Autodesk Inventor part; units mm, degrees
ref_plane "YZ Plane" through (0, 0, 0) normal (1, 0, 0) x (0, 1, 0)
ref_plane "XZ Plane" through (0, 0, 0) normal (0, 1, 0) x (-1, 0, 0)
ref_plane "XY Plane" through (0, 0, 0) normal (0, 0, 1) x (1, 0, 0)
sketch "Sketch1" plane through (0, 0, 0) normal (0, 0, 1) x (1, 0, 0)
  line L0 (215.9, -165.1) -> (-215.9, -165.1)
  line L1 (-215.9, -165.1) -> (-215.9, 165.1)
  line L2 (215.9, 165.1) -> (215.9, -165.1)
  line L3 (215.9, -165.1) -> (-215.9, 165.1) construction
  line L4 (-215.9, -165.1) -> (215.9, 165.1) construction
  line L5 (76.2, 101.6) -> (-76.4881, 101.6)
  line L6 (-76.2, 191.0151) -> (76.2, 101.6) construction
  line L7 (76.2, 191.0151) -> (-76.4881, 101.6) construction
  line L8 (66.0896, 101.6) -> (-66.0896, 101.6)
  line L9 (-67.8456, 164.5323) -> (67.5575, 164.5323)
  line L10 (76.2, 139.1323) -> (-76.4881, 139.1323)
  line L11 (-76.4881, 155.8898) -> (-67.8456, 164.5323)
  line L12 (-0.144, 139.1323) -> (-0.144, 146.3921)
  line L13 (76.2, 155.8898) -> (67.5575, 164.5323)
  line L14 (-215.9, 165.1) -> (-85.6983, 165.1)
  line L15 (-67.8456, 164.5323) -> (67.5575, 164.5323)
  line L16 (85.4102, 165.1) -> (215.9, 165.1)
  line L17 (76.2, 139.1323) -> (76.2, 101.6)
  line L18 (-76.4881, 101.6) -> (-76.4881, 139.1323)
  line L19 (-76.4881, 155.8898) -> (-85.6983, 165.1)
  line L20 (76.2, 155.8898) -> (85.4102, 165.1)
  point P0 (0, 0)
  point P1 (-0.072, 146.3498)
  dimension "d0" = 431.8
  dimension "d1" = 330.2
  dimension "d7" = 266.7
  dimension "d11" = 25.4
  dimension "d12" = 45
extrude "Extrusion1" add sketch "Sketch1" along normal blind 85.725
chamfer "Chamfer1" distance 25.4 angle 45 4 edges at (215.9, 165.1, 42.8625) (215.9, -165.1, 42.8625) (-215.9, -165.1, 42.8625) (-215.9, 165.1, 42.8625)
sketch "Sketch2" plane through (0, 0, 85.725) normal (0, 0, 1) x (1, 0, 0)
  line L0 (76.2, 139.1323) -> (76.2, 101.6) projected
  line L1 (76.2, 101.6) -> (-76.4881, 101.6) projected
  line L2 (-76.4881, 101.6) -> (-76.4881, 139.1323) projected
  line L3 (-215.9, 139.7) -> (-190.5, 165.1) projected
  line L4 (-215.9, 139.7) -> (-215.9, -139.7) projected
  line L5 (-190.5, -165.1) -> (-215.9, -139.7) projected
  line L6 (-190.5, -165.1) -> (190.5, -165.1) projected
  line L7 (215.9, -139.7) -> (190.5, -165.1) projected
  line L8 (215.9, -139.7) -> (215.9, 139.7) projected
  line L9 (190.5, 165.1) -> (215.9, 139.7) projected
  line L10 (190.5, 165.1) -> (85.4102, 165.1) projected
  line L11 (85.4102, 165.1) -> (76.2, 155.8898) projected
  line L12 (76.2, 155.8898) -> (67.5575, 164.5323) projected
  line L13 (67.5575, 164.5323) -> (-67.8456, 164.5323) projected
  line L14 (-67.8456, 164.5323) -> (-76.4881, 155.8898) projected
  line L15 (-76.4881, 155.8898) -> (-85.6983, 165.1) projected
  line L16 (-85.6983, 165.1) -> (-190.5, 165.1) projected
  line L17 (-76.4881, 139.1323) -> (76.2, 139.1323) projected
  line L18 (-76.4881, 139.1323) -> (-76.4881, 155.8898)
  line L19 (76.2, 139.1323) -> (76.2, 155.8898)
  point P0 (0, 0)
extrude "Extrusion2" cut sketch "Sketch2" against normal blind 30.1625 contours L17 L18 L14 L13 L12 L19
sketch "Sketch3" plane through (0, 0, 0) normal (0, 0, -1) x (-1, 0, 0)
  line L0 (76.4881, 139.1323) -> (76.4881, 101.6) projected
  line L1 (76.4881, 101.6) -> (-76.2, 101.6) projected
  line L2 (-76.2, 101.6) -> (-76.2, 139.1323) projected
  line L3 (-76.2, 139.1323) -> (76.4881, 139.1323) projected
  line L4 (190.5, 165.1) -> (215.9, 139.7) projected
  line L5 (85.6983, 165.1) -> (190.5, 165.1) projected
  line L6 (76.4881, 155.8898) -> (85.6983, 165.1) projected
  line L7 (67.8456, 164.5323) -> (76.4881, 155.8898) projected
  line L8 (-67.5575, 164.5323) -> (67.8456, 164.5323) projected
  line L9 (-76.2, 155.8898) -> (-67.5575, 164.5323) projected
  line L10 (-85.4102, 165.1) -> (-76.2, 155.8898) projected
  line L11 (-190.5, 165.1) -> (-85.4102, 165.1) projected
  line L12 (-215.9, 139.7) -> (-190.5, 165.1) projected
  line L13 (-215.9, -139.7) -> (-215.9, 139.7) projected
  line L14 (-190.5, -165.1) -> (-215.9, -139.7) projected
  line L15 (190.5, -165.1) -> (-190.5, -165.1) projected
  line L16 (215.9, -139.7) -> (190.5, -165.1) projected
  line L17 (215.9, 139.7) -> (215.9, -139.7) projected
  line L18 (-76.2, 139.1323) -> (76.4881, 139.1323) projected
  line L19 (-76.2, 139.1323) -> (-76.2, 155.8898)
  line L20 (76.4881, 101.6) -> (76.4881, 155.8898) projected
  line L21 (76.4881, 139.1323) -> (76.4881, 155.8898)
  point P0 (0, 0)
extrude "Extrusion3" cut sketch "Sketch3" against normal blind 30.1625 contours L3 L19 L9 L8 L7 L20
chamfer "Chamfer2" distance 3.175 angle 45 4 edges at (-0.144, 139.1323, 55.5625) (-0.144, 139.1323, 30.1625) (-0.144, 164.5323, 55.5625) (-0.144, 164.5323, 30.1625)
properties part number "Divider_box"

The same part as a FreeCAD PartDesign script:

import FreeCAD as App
import Part
import Sketcher
from FreeCAD import Vector
Q = App.Units.Quantity


def edges_at(feature, points):
    """Names of the edges that pass closest to the given points."""
    edges = feature.Shape.Edges
    near = lambda p: min(range(len(edges)), key=lambda i: edges[i].distToShape(Part.Vertex(*p))[0])
    return sorted({f"Edge{near(p) + 1}" for p in points})

doc = App.newDocument("Part")
params = doc.addObject("Spreadsheet::Sheet", "Params")
for row, (alias, value) in enumerate([
    ("sketch1_width", "17 in"),
    ("sketch1_height", "13 in"),
    ("pad1_length", "3.375 in"),
    ("chamfer_size", "1 in"),
    ("pocket1_length", "1.1875 in"),
    ("pocket2_length", "1.1875 in"),
    ("chamfer2_size", "0.125 in"),
], start=1):
    params.set(f"A{row}", alias)
    params.set(f"B{row}", "=" + value)
    params.setAlias(f"B{row}", alias)

body = doc.addObject("PartDesign::Body", "Body")

# Sketch on XY plane
sketch1 = body.newObject("Sketcher::SketchObject", "Sketch")
sketch1.AttachmentSupport = (doc.getObject("XY_Plane"), [""])
sketch1.MapMode = "FlatFace"
sketch1.addGeometry(Part.LineSegment(Vector(-216, -165, 0), Vector(216, -165, 0)), False)
sketch1.addGeometry(Part.LineSegment(Vector(216, -165, 0), Vector(216, 165, 0)), False)
sketch1.addGeometry(Part.LineSegment(Vector(216, 165, 0), Vector(85, 165, 0)), False)
sketch1.addGeometry(Part.LineSegment(Vector(85, 165, 0), Vector(76, 156, 0)), False)
sketch1.addGeometry(Part.LineSegment(Vector(76, 156, 0), Vector(68, 165, 0)), False)
sketch1.addGeometry(Part.LineSegment(Vector(68, 165, 0), Vector(-68, 165, 0)), False)
sketch1.addGeometry(Part.LineSegment(Vector(-68, 165, 0), Vector(-76, 156, 0)), False)
sketch1.addGeometry(Part.LineSegment(Vector(-76, 156, 0), Vector(-86, 165, 0)), False)
sketch1.addGeometry(Part.LineSegment(Vector(-86, 165, 0), Vector(-216, 165, 0)), False)
sketch1.addGeometry(Part.LineSegment(Vector(-216, 165, 0), Vector(-216, -165, 0)), False)
sketch1.addGeometry(Part.LineSegment(Vector(76, 139, 0), Vector(76, 102, 0)), False)
sketch1.addGeometry(Part.LineSegment(Vector(76, 102, 0), Vector(-76, 102, 0)), False)
sketch1.addGeometry(Part.LineSegment(Vector(-76, 102, 0), Vector(-76, 139, 0)), False)
sketch1.addGeometry(Part.LineSegment(Vector(-76, 139, 0), Vector(76, 139, 0)), False)
sketch1.addConstraint(Sketcher.Constraint("Coincident", 0, 2, 1, 1))
sketch1.addConstraint(Sketcher.Constraint("Coincident", 1, 2, 2, 1))
sketch1.addConstraint(Sketcher.Constraint("Coincident", 2, 2, 3, 1))
sketch1.addConstraint(Sketcher.Constraint("Coincident", 3, 2, 4, 1))
sketch1.addConstraint(Sketcher.Constraint("Coincident", 4, 2, 5, 1))
sketch1.addConstraint(Sketcher.Constraint("Coincident", 5, 2, 6, 1))
sketch1.addConstraint(Sketcher.Constraint("Coincident", 6, 2, 7, 1))
sketch1.addConstraint(Sketcher.Constraint("Coincident", 7, 2, 8, 1))
sketch1.addConstraint(Sketcher.Constraint("Coincident", 8, 2, 9, 1))
sketch1.addConstraint(Sketcher.Constraint("Coincident", 9, 2, 0, 1))
sketch1.addConstraint(Sketcher.Constraint("Coincident", 10, 2, 11, 1))
sketch1.addConstraint(Sketcher.Constraint("Coincident", 11, 2, 12, 1))
sketch1.addConstraint(Sketcher.Constraint("Coincident", 12, 2, 13, 1))
sketch1.addConstraint(Sketcher.Constraint("Coincident", 13, 2, 10, 1))
sketch1.addConstraint(Sketcher.Constraint("Horizontal", 0))
sketch1.addConstraint(Sketcher.Constraint("Vertical", 1))
sketch1.addConstraint(Sketcher.Constraint("Horizontal", 2))
sketch1.addConstraint(Sketcher.Constraint("Horizontal", 5))
sketch1.addConstraint(Sketcher.Constraint("Horizontal", 8))
sketch1.addConstraint(Sketcher.Constraint("Vertical", 9))
sketch1.addConstraint(Sketcher.Constraint("Vertical", 10))
sketch1.addConstraint(Sketcher.Constraint("Horizontal", 11))
sketch1.addConstraint(Sketcher.Constraint("Vertical", 12))
sketch1.addConstraint(Sketcher.Constraint("Horizontal", 13))
sketch1.addConstraint(Sketcher.Constraint("Symmetric", 0, 2, 8, 2, -1, 1))
sketch1.addConstraint(Sketcher.Constraint("Perpendicular", 3, 4))
sketch1.addConstraint(Sketcher.Constraint("Perpendicular", 4, 6))
sketch1.addConstraint(Sketcher.Constraint("Perpendicular", 6, 7))
sketch1.addConstraint(Sketcher.Constraint("Horizontal", 3, 2, 6, 2))
sketch1.addConstraint(Sketcher.Constraint("Horizontal", 2, 2, 7, 2))
sketch1.addConstraint(Sketcher.Constraint("Vertical", 3, 2, 10, 2))
sketch1.addConstraint(Sketcher.Constraint("Vertical", 6, 2, 11, 2))
sketch1.addConstraint(Sketcher.Constraint("Equal", 4, 6))
sketch1.addConstraint(Sketcher.Constraint("DistanceX", 0, 1, 0, 2, Q("17 in")))
sketch1.addConstraint(Sketcher.Constraint("DistanceY", 1, 1, 1, 2, Q("13 in")))
sketch1.addConstraint(Sketcher.Constraint("DistanceY", 12, 2, 5, 2, Q("1 in")))
sketch1.addConstraint(Sketcher.Constraint("DistanceX", -1, 1, 3, 2, Q("3 in")))
sketch1.addConstraint(Sketcher.Constraint("DistanceY", -1, 1, 10, 2, Q("4 in")))
sketch1.addConstraint(Sketcher.Constraint("DistanceX", 2, 2, 2, 1, Q("5.1374 in")))
sketch1.addConstraint(Sketcher.Constraint("Distance", 4, Q("0.4812 in")))
sketch1.addConstraint(Sketcher.Constraint("DistanceX", 5, 2, 5, 1, 135.403))
sketch1.setExpression("Constraints[33]", "Params.sketch1_width")
sketch1.setExpression("Constraints[34]", "Params.sketch1_height")
pad1 = body.newObject("PartDesign::Pad", "Pad")
pad1.Profile = sketch1
pad1.setExpression("Length", "Params.pad1_length")
doc.recompute()

chamfer = body.newObject("PartDesign::Chamfer", "Chamfer")
chamfer.Base = (pad1, edges_at(pad1, [
    (215.9, 165.1, 42.862),
    (215.9, -165.1, 42.862),
    (-215.9, -165.1, 42.862),
    (-215.9, 165.1, 42.862),
]))
chamfer.setExpression("Size", "Params.chamfer_size")

# Sketch on XY plane
sketch2 = body.newObject("Sketcher::SketchObject", "Sketch001")
sketch2.AttachmentSupport = (doc.getObject("XY_Plane"), [""])
sketch2.MapMode = "FlatFace"
sketch2.AttachmentOffset = App.Placement(Vector(0, 0, 3.375 * 25.4), App.Rotation())
sketch2.addGeometry(Part.LineSegment(Vector(-76, 139, 0), Vector(76, 139, 0)), False)
sketch2.addGeometry(Part.LineSegment(Vector(76, 139, 0), Vector(76, 156, 0)), False)
sketch2.addGeometry(Part.LineSegment(Vector(76, 156, 0), Vector(68, 165, 0)), False)
sketch2.addGeometry(Part.LineSegment(Vector(68, 165, 0), Vector(-68, 165, 0)), False)
sketch2.addGeometry(Part.LineSegment(Vector(-68, 165, 0), Vector(-76, 156, 0)), False)
sketch2.addGeometry(Part.LineSegment(Vector(-76, 156, 0), Vector(-76, 139, 0)), False)
sketch2.addConstraint(Sketcher.Constraint("Coincident", 0, 2, 1, 1))
sketch2.addConstraint(Sketcher.Constraint("Coincident", 1, 2, 2, 1))
sketch2.addConstraint(Sketcher.Constraint("Coincident", 2, 2, 3, 1))
sketch2.addConstraint(Sketcher.Constraint("Coincident", 3, 2, 4, 1))
sketch2.addConstraint(Sketcher.Constraint("Coincident", 4, 2, 5, 1))
sketch2.addConstraint(Sketcher.Constraint("Coincident", 5, 2, 0, 1))
sketch2.addConstraint(Sketcher.Constraint("Horizontal", 0))
sketch2.addConstraint(Sketcher.Constraint("Vertical", 1))
sketch2.addConstraint(Sketcher.Constraint("Horizontal", 3))
sketch2.addConstraint(Sketcher.Constraint("Vertical", 5))
sketch2.addConstraint(Sketcher.Constraint("Perpendicular", 2, 4))
sketch2.addConstraint(Sketcher.Constraint("Horizontal", 1, 2, 4, 2))
sketch2.addConstraint(Sketcher.Constraint("Equal", 2, 4))
sketch2.addConstraint(Sketcher.Constraint("DistanceX", -1, 1, 0, 2, Q("3 in")))
sketch2.addConstraint(Sketcher.Constraint("DistanceY", 0, 2, 2, 2, Q("1 in")))
sketch2.addConstraint(Sketcher.Constraint("Distance", 2, Q("0.4812 in")))
sketch2.addConstraint(Sketcher.Constraint("DistanceX", 0, 1, 0, 2, 152.688))
sketch2.addConstraint(Sketcher.Constraint("DistanceY", -1, 1, 1, 2, Q("6.1374 in")))
pocket1 = body.newObject("PartDesign::Pocket", "Pocket")
pocket1.Profile = sketch2
pocket1.setExpression("Length", "Params.pocket1_length")

# Sketch on XY plane
sketch3 = body.newObject("Sketcher::SketchObject", "Sketch002")
sketch3.AttachmentSupport = (doc.getObject("XY_Plane"), [""])
sketch3.MapMode = "FlatFace"
sketch3.addGeometry(Part.LineSegment(Vector(76, 139, 0), Vector(-76, 139, 0)), False)
sketch3.addGeometry(Part.LineSegment(Vector(-76, 139, 0), Vector(-76, 156, 0)), False)
sketch3.addGeometry(Part.LineSegment(Vector(-76, 156, 0), Vector(-68, 165, 0)), False)
sketch3.addGeometry(Part.LineSegment(Vector(-68, 165, 0), Vector(68, 165, 0)), False)
sketch3.addGeometry(Part.LineSegment(Vector(68, 165, 0), Vector(76, 156, 0)), False)
sketch3.addGeometry(Part.LineSegment(Vector(76, 156, 0), Vector(76, 139, 0)), False)
sketch3.addConstraint(Sketcher.Constraint("Coincident", 0, 2, 1, 1))
sketch3.addConstraint(Sketcher.Constraint("Coincident", 1, 2, 2, 1))
sketch3.addConstraint(Sketcher.Constraint("Coincident", 2, 2, 3, 1))
sketch3.addConstraint(Sketcher.Constraint("Coincident", 3, 2, 4, 1))
sketch3.addConstraint(Sketcher.Constraint("Coincident", 4, 2, 5, 1))
sketch3.addConstraint(Sketcher.Constraint("Coincident", 5, 2, 0, 1))
sketch3.addConstraint(Sketcher.Constraint("Horizontal", 0))
sketch3.addConstraint(Sketcher.Constraint("Vertical", 1))
sketch3.addConstraint(Sketcher.Constraint("Horizontal", 3))
sketch3.addConstraint(Sketcher.Constraint("Vertical", 5))
sketch3.addConstraint(Sketcher.Constraint("Perpendicular", 2, 4))
sketch3.addConstraint(Sketcher.Constraint("Horizontal", 1, 2, 4, 2))
sketch3.addConstraint(Sketcher.Constraint("Equal", 2, 4))
sketch3.addConstraint(Sketcher.Constraint("DistanceX", -1, 1, 4, 2, Q("3 in")))
sketch3.addConstraint(Sketcher.Constraint("DistanceY", 0, 2, 2, 2, Q("1 in")))
sketch3.addConstraint(Sketcher.Constraint("Distance", 2, Q("0.4812 in")))
sketch3.addConstraint(Sketcher.Constraint("DistanceX", 0, 2, 0, 1, 152.688))
sketch3.addConstraint(Sketcher.Constraint("DistanceY", -1, 1, 1, 2, Q("6.1374 in")))
pocket2 = body.newObject("PartDesign::Pocket", "Pocket001")
pocket2.Profile = sketch3
pocket2.setExpression("Length", "Params.pocket2_length")
pocket2.Reversed = True
doc.recompute()

chamfer2 = body.newObject("PartDesign::Chamfer", "Chamfer001")
chamfer2.Base = (pocket2, edges_at(pocket2, [
    (-0.144, 139.132, 55.562),
    (-0.144, 139.132, 30.163),
    (-0.144, 164.532, 55.562),
    (-0.144, 164.532, 30.163),
]))
chamfer2.setExpression("Size", "Params.chamfer2_size")

doc.recompute()
